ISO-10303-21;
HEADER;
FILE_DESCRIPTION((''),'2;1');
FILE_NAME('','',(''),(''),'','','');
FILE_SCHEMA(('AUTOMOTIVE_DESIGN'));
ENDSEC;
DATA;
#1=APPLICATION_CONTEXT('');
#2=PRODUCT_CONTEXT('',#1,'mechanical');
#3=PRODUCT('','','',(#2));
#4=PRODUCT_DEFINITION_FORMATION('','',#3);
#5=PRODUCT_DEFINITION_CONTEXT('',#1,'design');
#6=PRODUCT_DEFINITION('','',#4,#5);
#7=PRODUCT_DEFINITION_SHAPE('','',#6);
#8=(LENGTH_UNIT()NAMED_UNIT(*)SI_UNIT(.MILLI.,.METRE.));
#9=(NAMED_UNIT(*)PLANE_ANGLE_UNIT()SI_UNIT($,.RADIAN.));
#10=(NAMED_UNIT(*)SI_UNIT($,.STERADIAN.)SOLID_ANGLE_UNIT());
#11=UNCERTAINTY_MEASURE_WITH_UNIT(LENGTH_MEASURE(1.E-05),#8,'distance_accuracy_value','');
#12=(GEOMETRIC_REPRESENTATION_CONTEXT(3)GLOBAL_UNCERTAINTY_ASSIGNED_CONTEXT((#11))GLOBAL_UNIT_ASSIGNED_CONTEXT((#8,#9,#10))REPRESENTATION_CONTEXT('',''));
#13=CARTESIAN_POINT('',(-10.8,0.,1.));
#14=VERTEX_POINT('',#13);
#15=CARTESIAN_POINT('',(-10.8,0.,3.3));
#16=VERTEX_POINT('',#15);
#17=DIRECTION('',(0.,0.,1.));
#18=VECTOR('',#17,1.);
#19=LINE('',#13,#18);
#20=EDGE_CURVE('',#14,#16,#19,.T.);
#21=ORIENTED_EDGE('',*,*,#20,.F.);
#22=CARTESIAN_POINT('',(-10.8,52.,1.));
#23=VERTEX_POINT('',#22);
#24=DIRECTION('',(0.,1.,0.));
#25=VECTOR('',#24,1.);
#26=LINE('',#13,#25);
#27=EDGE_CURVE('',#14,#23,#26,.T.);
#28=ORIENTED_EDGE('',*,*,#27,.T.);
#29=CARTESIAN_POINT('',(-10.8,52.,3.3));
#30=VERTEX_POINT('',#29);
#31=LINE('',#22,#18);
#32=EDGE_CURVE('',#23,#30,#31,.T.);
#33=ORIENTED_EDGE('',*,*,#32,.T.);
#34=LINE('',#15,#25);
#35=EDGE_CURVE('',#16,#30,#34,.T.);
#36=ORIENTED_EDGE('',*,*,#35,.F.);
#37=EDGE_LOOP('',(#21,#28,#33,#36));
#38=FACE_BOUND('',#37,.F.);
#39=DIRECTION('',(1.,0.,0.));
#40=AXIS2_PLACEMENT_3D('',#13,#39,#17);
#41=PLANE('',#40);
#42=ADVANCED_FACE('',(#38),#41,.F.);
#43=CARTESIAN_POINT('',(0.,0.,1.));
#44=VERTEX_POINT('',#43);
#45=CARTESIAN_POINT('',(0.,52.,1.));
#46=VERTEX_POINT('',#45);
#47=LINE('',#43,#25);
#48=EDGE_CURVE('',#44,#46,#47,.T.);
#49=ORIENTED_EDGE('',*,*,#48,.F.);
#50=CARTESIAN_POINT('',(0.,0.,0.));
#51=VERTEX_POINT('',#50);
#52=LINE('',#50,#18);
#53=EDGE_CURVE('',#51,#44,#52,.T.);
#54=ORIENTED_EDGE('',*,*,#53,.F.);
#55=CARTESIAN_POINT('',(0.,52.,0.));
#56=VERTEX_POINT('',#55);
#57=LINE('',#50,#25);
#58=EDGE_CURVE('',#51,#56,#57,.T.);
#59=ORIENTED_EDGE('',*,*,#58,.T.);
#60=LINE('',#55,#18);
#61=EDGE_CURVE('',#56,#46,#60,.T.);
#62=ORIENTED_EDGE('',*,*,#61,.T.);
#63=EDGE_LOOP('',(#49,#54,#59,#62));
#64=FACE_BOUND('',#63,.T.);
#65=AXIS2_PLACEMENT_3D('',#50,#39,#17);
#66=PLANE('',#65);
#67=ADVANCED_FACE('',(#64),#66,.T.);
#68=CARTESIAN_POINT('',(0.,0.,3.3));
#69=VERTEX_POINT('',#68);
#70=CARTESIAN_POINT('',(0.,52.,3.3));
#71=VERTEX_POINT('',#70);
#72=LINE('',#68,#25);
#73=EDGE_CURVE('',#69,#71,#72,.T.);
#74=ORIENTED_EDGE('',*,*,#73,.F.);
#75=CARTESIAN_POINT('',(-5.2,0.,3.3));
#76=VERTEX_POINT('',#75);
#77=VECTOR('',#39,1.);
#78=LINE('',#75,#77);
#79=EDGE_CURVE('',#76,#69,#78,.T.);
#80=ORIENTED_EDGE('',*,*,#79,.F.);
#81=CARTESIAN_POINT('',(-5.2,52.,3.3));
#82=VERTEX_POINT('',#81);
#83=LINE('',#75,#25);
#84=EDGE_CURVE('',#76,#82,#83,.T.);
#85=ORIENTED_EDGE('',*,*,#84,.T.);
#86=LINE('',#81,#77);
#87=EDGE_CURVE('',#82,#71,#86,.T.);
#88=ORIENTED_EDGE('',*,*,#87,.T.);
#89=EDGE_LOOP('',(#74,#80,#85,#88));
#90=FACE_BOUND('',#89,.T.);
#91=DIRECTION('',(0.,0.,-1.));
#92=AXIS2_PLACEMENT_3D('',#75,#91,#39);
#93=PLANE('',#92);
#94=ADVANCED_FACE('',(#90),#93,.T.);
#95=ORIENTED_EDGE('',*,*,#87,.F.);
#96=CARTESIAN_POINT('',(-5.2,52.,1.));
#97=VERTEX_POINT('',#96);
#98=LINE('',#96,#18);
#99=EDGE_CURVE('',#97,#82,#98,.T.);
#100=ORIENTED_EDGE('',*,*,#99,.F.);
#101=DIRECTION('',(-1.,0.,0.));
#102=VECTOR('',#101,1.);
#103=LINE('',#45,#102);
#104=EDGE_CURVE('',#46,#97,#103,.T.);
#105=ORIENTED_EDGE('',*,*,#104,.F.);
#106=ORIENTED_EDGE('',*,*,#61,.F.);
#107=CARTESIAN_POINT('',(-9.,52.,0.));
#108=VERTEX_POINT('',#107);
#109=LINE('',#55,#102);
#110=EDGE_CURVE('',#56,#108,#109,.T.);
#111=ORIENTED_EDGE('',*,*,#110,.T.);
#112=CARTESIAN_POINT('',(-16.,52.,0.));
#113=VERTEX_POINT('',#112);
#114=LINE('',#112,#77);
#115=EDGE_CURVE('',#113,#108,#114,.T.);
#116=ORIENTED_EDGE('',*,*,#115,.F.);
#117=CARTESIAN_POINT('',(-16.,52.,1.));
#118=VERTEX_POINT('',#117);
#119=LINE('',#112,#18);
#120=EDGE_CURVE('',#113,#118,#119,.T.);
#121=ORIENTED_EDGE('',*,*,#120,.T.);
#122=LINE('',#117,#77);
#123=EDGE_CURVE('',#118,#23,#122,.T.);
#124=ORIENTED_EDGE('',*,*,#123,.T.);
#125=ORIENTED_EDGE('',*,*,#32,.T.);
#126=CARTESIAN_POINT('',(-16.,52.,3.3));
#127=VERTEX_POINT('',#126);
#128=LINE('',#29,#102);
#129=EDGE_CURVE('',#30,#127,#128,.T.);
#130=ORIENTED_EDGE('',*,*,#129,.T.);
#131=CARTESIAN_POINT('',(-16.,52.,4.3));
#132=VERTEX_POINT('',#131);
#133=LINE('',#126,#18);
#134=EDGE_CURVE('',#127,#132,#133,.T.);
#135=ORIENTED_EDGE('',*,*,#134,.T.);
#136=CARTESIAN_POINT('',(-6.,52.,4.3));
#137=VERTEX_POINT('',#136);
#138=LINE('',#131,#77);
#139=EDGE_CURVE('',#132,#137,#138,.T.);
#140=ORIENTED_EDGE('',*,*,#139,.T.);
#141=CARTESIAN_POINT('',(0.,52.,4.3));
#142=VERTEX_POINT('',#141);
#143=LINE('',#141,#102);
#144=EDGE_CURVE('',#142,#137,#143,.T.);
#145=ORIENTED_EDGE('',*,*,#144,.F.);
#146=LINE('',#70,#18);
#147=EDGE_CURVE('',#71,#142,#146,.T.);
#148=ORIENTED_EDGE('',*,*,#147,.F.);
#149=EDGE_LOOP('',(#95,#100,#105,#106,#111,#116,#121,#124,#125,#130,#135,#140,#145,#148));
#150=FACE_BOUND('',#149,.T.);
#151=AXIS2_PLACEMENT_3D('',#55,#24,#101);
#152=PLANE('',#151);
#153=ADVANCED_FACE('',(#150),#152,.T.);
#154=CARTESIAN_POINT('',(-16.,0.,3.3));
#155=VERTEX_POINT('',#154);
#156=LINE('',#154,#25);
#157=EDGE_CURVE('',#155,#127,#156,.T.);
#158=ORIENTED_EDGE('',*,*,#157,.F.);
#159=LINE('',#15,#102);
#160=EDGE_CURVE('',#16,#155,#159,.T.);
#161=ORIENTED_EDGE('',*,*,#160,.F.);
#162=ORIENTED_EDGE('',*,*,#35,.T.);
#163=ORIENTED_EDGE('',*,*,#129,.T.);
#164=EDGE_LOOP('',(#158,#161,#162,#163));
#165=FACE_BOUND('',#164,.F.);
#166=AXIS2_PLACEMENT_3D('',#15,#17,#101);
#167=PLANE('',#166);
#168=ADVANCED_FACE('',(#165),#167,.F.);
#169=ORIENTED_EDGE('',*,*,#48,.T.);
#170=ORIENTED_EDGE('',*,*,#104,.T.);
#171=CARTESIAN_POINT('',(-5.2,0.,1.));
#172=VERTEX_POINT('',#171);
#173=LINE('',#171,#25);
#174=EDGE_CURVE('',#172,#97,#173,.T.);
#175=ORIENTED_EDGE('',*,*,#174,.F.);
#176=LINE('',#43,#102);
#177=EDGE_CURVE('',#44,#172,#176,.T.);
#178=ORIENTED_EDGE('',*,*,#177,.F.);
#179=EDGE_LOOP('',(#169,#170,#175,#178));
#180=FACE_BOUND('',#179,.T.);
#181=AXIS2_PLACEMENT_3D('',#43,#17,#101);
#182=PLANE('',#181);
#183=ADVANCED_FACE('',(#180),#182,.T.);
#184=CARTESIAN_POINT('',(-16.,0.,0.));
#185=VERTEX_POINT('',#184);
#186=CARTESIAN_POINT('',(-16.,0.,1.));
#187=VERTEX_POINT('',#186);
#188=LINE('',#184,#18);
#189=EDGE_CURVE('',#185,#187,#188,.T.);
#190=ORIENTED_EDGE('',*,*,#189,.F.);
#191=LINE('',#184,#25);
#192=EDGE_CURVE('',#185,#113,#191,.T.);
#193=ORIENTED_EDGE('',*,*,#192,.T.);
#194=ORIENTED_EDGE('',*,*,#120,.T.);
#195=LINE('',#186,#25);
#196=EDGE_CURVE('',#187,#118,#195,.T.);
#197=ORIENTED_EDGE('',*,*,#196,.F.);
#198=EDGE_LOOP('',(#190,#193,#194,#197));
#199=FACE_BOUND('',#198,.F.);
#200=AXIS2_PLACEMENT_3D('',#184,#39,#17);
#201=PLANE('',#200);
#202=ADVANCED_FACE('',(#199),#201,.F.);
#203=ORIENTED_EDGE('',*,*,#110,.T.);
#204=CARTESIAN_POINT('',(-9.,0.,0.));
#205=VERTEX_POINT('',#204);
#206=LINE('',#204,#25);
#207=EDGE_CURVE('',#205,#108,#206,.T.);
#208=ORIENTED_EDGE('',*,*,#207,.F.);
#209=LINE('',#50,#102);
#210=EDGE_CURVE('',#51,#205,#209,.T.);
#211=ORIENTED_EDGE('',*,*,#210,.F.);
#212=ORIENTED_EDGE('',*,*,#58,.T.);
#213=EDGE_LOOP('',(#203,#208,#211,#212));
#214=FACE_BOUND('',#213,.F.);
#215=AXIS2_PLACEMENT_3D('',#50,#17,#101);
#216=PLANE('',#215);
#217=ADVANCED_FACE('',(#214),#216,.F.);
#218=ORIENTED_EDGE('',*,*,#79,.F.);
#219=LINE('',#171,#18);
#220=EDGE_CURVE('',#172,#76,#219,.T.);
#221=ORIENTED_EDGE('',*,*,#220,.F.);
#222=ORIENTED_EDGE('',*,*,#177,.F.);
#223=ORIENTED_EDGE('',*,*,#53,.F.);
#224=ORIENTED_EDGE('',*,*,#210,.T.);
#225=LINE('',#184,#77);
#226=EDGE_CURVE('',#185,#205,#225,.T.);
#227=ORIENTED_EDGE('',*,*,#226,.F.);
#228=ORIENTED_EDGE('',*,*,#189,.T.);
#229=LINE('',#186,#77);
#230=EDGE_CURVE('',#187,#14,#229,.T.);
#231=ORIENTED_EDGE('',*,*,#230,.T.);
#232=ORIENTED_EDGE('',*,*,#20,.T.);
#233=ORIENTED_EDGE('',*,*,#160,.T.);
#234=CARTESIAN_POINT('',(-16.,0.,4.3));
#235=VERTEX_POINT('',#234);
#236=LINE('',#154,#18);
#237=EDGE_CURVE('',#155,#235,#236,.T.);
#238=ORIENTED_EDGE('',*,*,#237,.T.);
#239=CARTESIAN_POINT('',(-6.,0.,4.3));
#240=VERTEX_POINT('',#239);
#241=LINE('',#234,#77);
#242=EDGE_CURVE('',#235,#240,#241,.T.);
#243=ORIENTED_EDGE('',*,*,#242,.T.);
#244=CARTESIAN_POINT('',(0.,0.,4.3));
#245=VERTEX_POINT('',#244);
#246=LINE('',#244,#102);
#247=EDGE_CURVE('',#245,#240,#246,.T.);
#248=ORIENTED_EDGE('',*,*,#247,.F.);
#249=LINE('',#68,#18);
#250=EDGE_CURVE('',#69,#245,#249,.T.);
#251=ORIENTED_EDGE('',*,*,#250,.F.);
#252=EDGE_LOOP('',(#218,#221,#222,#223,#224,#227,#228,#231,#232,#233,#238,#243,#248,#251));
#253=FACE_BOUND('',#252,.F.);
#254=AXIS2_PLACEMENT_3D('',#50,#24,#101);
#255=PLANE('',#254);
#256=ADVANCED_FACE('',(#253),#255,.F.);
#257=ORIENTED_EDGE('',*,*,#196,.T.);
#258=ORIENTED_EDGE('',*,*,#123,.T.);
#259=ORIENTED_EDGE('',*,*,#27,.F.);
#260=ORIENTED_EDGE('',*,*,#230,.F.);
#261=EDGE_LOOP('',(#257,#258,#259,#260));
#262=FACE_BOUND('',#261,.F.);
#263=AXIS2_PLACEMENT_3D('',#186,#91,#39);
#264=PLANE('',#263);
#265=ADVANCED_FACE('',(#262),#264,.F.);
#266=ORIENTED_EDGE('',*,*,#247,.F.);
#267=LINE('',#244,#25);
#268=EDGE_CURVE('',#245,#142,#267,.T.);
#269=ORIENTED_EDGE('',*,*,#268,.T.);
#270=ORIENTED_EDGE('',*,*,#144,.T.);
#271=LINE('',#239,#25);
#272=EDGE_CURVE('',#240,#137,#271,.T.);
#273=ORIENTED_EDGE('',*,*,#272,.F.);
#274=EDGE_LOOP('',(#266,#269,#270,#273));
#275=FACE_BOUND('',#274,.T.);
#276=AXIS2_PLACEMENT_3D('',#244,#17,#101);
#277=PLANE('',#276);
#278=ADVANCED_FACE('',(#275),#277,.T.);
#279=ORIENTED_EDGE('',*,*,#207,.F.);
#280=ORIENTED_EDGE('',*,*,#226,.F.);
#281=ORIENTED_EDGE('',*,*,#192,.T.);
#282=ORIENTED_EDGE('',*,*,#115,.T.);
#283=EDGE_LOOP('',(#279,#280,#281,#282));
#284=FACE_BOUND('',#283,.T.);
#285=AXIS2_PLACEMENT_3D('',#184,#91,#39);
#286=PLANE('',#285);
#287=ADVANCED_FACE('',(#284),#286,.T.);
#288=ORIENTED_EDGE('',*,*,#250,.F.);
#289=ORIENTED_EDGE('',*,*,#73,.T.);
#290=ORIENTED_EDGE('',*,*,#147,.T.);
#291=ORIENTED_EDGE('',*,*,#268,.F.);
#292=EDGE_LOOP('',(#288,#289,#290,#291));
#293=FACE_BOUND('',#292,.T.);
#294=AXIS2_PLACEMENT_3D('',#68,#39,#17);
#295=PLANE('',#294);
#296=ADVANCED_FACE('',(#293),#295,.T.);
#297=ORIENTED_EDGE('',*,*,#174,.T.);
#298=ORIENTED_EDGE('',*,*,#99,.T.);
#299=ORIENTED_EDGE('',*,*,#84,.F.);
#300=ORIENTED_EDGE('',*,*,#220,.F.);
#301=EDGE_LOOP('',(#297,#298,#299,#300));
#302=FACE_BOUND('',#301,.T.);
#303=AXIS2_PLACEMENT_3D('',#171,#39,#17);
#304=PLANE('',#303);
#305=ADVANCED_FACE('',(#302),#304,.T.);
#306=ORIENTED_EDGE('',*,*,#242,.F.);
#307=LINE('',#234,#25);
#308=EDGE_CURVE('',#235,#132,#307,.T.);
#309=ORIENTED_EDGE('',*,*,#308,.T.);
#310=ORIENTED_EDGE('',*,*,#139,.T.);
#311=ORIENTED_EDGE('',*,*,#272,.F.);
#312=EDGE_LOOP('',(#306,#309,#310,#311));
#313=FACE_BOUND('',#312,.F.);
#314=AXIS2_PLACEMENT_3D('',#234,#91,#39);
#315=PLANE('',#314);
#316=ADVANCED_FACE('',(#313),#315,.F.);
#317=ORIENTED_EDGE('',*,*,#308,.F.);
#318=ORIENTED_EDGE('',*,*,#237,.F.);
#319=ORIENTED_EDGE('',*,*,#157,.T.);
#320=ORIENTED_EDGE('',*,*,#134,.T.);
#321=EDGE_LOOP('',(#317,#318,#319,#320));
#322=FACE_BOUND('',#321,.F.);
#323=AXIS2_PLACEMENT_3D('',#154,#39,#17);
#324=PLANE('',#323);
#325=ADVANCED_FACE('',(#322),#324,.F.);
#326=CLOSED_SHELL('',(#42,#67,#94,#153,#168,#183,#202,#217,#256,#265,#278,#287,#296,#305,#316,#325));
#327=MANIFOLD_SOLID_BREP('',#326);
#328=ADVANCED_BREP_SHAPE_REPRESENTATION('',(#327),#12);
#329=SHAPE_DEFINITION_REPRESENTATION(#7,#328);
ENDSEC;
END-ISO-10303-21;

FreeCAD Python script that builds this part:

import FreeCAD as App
import Part
import Sketcher
from FreeCAD import Vector


def add_polygon(sketch, points):
    """Adds a closed chain of lines whose ends are joined by coincident constraints."""
    first, n = sketch.GeometryCount, len(points)
    for a, b in zip(points, points[1:] + points[:1]):
        sketch.addGeometry(Part.LineSegment(App.Vector(*a, 0), App.Vector(*b, 0)), False)
    for i in range(n):
        sketch.addConstraint(Sketcher.Constraint("Coincident", first + i, 2, first + (i + 1) % n, 1))

doc = App.newDocument("Part")
body = doc.addObject("PartDesign::Body", "Body")

# Sketch on XZ plane
sketch1 = body.newObject("Sketcher::SketchObject", "Sketch")
sketch1.AttachmentSupport = (doc.getObject("XZ_Plane"), [""])
sketch1.MapMode = "FlatFace"
add_polygon(sketch1, [(0, 1), (0, 0), (-16, 0), (-16, 1), (-10.8, 1), (-10.8, 3.3), (-16, 3.3), (-16, 4.3), (0, 4.3), (0, 3.3), (-5.2, 3.3), (-5.2, 1)])  # lines 0-11
sketch1.addConstraint(Sketcher.Constraint("Vertical", 0))
sketch1.addConstraint(Sketcher.Constraint("Horizontal", 1))
sketch1.addConstraint(Sketcher.Constraint("Vertical", 2))
sketch1.addConstraint(Sketcher.Constraint("Horizontal", 3))
sketch1.addConstraint(Sketcher.Constraint("Vertical", 4))
sketch1.addConstraint(Sketcher.Constraint("Horizontal", 5))
sketch1.addConstraint(Sketcher.Constraint("Vertical", 6))
sketch1.addConstraint(Sketcher.Constraint("Horizontal", 7))
sketch1.addConstraint(Sketcher.Constraint("Vertical", 8))
sketch1.addConstraint(Sketcher.Constraint("Horizontal", 9))
sketch1.addConstraint(Sketcher.Constraint("Vertical", 10))
sketch1.addConstraint(Sketcher.Constraint("Horizontal", 11))
sketch1.addConstraint(Sketcher.Constraint("Coincident", 0, 2, -1, 1))
sketch1.addConstraint(Sketcher.Constraint("PointOnObject", 7, 2, -2))
sketch1.addConstraint(Sketcher.Constraint("Horizontal", 5, 2, 8, 2))
sketch1.addConstraint(Sketcher.Constraint("Horizontal", 3, 2, 10, 2))
sketch1.addConstraint(Sketcher.Constraint("Vertical", 2, 2, 5, 2))
sketch1.addConstraint(Sketcher.Constraint("Equal", 5, 9))
sketch1.addConstraint(Sketcher.Constraint("Equal", 2, 6))
sketch1.addConstraint(Sketcher.Constraint("DistanceX", 1, 2, 1, 1, 16.0))
sketch1.addConstraint(Sketcher.Constraint("DistanceY", 0, 2, 0, 1, 1.0))
sketch1.addConstraint(Sketcher.Constraint("DistanceY", 4, 1, 4, 2, 2.3))
sketch1.addConstraint(Sketcher.Constraint("DistanceX", 3, 1, 3, 2, 5.2))
pad1 = body.newObject("PartDesign::Pad", "Pad")
pad1.Profile = sketch1
pad1.Length = 52
pad1.Reversed = True

doc.recompute()
